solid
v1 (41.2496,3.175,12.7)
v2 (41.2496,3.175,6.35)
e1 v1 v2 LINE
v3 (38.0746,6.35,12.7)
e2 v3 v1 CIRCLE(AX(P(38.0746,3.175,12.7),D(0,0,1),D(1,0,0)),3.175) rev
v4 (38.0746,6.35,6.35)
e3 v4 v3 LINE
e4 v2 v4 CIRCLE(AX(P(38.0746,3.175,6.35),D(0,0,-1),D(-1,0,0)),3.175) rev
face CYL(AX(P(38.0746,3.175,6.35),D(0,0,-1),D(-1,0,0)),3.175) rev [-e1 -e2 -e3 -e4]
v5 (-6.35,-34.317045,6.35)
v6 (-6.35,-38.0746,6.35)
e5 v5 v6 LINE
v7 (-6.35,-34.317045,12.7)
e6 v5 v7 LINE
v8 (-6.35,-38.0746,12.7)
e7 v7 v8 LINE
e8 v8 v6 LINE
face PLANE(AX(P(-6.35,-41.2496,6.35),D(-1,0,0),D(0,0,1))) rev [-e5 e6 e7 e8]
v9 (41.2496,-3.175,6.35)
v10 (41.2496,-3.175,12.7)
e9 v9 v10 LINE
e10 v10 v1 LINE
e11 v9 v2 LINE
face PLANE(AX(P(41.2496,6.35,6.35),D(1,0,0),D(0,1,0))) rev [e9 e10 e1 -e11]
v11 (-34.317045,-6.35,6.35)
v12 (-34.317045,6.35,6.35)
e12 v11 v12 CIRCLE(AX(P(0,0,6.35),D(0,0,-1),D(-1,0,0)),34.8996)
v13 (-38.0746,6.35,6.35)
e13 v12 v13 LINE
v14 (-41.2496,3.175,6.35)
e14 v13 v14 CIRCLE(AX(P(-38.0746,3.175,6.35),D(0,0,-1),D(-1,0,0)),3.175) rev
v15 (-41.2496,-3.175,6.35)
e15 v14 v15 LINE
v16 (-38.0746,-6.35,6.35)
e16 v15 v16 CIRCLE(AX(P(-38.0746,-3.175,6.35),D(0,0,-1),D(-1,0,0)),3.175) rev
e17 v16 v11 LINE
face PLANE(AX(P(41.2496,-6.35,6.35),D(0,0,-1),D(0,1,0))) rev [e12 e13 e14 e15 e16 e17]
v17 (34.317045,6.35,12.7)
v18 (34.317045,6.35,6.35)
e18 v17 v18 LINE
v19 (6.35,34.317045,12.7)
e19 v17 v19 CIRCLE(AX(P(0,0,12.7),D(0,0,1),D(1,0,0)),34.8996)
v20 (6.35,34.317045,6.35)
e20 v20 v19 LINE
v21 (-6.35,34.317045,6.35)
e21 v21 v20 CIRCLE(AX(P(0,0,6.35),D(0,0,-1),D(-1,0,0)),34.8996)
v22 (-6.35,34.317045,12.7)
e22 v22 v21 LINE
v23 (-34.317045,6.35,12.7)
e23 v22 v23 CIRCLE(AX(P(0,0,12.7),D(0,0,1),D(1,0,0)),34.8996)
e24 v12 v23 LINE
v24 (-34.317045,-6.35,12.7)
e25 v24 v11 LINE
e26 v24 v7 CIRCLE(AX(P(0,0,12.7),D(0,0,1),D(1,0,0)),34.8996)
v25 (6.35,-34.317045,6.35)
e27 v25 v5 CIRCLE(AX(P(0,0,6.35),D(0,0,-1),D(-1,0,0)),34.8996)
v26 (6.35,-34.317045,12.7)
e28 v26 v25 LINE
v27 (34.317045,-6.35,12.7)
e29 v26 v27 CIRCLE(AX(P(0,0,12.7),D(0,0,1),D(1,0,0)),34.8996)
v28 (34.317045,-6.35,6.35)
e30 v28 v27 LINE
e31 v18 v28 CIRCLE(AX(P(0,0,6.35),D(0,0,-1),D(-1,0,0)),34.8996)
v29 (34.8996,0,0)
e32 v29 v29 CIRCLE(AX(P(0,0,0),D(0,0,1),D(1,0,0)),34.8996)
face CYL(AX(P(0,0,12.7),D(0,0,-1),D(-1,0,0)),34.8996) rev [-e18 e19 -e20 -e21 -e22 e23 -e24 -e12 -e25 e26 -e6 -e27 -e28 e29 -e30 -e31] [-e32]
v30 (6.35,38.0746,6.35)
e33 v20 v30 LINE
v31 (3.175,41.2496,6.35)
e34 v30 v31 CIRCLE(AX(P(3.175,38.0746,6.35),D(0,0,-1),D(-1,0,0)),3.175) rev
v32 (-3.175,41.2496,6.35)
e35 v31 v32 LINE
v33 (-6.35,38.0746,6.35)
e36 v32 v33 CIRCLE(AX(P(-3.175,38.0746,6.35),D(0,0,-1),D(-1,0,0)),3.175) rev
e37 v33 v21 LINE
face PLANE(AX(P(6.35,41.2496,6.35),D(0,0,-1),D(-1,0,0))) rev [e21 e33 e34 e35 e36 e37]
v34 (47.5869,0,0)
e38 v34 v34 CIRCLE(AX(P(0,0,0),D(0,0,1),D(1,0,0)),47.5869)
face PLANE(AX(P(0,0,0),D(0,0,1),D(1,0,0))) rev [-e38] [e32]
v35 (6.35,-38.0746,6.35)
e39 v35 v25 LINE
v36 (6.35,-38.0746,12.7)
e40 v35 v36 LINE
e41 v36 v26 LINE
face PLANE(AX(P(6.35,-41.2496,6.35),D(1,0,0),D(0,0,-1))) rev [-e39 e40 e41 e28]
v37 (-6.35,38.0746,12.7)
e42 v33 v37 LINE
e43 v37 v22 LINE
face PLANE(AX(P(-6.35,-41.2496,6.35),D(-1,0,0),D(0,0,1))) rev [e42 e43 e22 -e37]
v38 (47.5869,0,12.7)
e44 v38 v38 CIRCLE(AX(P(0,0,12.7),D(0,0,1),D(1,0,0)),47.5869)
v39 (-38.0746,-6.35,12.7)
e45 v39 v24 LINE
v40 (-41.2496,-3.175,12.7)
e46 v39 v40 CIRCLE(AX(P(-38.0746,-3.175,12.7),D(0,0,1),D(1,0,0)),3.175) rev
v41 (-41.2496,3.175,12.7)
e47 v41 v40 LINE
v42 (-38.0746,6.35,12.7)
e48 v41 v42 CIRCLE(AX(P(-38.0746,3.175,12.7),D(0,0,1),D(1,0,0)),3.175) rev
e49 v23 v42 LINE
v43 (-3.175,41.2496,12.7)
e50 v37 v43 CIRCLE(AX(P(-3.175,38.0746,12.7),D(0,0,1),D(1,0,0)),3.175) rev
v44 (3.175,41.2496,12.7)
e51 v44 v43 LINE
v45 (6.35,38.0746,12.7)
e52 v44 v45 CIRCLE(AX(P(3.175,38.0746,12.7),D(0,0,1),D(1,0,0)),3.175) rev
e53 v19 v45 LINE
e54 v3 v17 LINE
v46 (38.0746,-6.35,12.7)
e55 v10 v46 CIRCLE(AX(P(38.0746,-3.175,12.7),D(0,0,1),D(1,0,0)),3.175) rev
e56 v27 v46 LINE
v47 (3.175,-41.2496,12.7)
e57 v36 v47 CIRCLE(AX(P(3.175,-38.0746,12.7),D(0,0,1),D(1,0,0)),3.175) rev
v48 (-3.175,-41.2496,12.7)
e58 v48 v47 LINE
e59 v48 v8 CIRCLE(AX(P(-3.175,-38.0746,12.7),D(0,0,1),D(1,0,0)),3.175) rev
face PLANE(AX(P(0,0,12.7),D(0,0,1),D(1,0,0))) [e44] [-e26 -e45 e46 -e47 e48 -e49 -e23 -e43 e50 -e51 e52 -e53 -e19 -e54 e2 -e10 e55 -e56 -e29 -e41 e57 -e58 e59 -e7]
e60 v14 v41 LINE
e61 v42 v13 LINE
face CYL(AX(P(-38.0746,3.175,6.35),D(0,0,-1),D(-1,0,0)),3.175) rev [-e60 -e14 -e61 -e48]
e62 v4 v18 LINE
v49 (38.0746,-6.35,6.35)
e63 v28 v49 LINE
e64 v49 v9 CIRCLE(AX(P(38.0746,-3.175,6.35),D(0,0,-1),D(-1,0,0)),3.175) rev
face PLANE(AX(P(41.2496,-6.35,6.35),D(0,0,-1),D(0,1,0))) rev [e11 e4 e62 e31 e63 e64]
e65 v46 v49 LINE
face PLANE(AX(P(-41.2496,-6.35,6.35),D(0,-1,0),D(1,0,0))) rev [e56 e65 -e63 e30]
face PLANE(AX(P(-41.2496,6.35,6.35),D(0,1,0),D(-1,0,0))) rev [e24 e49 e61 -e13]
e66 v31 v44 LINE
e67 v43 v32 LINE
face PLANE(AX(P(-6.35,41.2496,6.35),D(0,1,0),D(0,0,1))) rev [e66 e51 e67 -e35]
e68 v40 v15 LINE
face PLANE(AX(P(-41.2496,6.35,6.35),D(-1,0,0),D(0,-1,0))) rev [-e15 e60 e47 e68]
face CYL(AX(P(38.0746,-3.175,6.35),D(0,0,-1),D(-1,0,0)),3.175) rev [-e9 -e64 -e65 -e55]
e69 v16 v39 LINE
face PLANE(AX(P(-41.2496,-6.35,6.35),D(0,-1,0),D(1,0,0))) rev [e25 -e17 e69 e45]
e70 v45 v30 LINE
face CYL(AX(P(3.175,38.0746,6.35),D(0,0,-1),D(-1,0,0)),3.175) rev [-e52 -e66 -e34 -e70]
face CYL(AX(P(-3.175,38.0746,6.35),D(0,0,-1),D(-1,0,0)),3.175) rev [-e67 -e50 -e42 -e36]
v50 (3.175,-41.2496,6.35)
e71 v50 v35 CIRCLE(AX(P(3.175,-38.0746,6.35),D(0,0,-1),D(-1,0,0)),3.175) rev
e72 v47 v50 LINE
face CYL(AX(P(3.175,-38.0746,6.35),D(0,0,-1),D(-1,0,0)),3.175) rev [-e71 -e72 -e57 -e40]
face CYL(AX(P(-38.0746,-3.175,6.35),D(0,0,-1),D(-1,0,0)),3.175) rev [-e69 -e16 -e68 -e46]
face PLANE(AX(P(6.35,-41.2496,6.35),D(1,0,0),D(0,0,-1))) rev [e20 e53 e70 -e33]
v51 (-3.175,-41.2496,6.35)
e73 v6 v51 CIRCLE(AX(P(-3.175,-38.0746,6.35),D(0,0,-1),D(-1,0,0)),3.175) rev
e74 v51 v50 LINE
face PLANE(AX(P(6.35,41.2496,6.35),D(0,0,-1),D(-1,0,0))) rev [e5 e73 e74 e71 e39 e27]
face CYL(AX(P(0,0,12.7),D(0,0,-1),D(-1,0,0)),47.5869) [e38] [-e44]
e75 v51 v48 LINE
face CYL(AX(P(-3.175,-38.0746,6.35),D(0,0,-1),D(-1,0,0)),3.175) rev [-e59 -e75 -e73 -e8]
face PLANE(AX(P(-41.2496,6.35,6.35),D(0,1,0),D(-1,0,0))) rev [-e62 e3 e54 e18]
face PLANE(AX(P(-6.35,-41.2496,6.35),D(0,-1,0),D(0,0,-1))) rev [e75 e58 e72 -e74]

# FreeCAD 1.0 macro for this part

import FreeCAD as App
import Part
import Sketcher

V = App.Vector
Q = App.Units.Quantity


def edges_at(feature, points):
    """Names of the edges that pass closest to the given points."""
    edges = feature.Shape.Edges
    near = lambda p: min(range(len(edges)), key=lambda i: edges[i].distToShape(Part.Vertex(*p))[0])
    return sorted({f"Edge{near(p) + 1}" for p in points})

doc = App.newDocument("Part")
body = doc.addObject("PartDesign::Body", "Body")

# Sketch on XY plane
sketch1 = body.newObject("Sketcher::SketchObject", "Sketch")
sketch1.AttachmentSupport = (doc.getObject("XY_Plane"), [""])
sketch1.MapMode = "FlatFace"
sketch1.addGeometry([
    Part.Circle(V(0, 0, 0), V(0, 0, 1), 48),
    Part.Circle(V(0, 0, 0), V(0, 0, 1), 35),
], False)
sketch1.addConstraint([
    Sketcher.Constraint("Coincident", 0, 3, -1, 1),
    Sketcher.Constraint("Coincident", 1, 3, -1, 1),
    Sketcher.Constraint("Diameter", 0, Q("3.747 in")),
    Sketcher.Constraint("Diameter", 1, Q("2.748 in")),
])
pad1 = body.newObject("PartDesign::Pad", "Pad")
pad1.Profile = sketch1
pad1.Length = Q("0.5 in")

# Sketch on XY plane
sketch2 = body.newObject("Sketcher::SketchObject", "Sketch001")
sketch2.AttachmentSupport = (doc.getObject("XY_Plane"), [""])
sketch2.MapMode = "FlatFace"
sketch2.AttachmentOffset = App.Placement(V(0, 0, 0.5 * 25.4), App.Rotation())
sketch2.addGeometry([
    Part.LineSegment(V(-6, 41, 0), V(-6, -41, 0)),
    Part.LineSegment(V(-6, -41, 0), V(6, -41, 0)),
    Part.LineSegment(V(6, -41, 0), V(6, 41, 0)),
    Part.LineSegment(V(6, 41, 0), V(-6, 41, 0)),
], False)
sketch2.addConstraint([
    Sketcher.Constraint("Coincident", 0, 2, 1, 1),
    Sketcher.Constraint("Coincident", 1, 2, 2, 1),
    Sketcher.Constraint("Coincident", 2, 2, 3, 1),
    Sketcher.Constraint("Coincident", 3, 2, 0, 1),
    Sketcher.Constraint("Vertical", 0),
    Sketcher.Constraint("Horizontal", 1),
    Sketcher.Constraint("Vertical", 2),
    Sketcher.Constraint("Horizontal", 3),
    Sketcher.Constraint("Symmetric", 0, 2, 2, 2, -1, 1),
    Sketcher.Constraint("DistanceX", 1, 1, 1, 2, Q("0.5 in")),
    Sketcher.Constraint("DistanceY", 0, 2, 0, 1, Q("3.248 in")),
])
pocket1 = body.newObject("PartDesign::Pocket", "Pocket")
pocket1.Profile = sketch2
pocket1.Length = Q("0.25 in")
doc.recompute()

fillet = body.newObject("PartDesign::Fillet", "Fillet")
fillet.Base = (pocket1, edges_at(pocket1, [
    (6.35, 41.25, 9.525),
    (6.35, -41.25, 9.525),
    (-6.35, -41.25, 9.525),
    (-6.35, 41.25, 9.525),
]))
fillet.Radius = Q("0.125 in")
doc.recompute()

polarpattern = body.newObject("PartDesign::PolarPattern", "PolarPattern")
polarpattern.Originals = [pocket1]
polarpattern.Axis = (doc.getObject("Z_Axis"), [""])
polarpattern.Angle = 90
polarpattern.Occurrences = 2
polarpattern.Reversed = True
body.Tip = polarpattern
doc.recompute()

fillet2 = body.newObject("PartDesign::Fillet", "Fillet001")
fillet2.Base = (polarpattern, edges_at(polarpattern, [
    (41.25, -6.35, 9.525),
    (-41.25, -6.35, 9.525),
    (-41.25, 6.35, 9.525),
    (41.25, 6.35, 9.525),
]))
fillet2.Radius = Q("0.125 in")

doc.recompute()
